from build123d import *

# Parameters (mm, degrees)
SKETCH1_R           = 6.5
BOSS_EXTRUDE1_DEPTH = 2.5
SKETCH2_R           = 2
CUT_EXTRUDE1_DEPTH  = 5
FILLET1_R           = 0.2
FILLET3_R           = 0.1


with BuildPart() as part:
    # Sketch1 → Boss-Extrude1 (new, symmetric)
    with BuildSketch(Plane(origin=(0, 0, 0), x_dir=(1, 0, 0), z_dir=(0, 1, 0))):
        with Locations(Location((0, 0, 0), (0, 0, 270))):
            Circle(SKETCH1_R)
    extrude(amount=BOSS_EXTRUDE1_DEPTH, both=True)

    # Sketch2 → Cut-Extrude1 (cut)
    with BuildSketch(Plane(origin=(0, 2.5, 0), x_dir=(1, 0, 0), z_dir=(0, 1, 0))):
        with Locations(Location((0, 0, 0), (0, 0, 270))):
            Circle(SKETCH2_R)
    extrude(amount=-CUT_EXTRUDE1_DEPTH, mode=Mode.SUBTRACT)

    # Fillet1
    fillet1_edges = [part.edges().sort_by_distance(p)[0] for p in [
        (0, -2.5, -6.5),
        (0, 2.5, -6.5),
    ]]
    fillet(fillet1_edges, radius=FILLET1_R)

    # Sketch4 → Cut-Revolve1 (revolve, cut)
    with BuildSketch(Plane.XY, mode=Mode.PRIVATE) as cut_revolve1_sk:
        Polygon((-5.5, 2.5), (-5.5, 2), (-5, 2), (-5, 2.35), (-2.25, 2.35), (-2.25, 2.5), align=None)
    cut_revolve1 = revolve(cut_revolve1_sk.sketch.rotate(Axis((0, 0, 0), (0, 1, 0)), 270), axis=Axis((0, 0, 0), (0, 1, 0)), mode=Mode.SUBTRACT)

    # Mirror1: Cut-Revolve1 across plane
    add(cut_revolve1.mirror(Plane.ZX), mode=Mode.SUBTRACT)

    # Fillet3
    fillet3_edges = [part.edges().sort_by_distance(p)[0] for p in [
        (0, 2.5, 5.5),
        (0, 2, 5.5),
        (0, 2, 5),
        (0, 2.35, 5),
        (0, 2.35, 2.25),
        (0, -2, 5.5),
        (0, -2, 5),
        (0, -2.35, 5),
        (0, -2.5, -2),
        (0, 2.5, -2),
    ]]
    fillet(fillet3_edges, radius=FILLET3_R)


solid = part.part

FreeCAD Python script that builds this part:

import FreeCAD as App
import Part
import Sketcher
from FreeCAD import Vector


def edges_at(feature, points):
    """Names of the edges that pass closest to the given points."""
    edges = feature.Shape.Edges
    near = lambda p: min(range(len(edges)), key=lambda i: edges[i].distToShape(Part.Vertex(*p))[0])
    return sorted({f"Edge{near(p) + 1}" for p in points})


def add_polygon(sketch, points):
    """Adds a closed chain of lines whose ends are joined by coincident constraints."""
    first, n = sketch.GeometryCount, len(points)
    for a, b in zip(points, points[1:] + points[:1]):
        sketch.addGeometry(Part.LineSegment(App.Vector(*a, 0), App.Vector(*b, 0)), False)
    for i in range(n):
        sketch.addConstraint(Sketcher.Constraint("Coincident", first + i, 2, first + (i + 1) % n, 1))

doc = App.newDocument("Part")
params = doc.addObject("Spreadsheet::Sheet", "Params")
for row, (alias, value) in enumerate([
    ("sketch1_diameter", "13 mm"),
    ("pad1_length", "5 mm"),
    ("sketch2_diameter", "4 mm"),
    ("pocket1_length", "5 mm"),
    ("fillet_radius", "0.2 mm"),
    ("sketch3_width", "0.5 mm"),
    ("sketch3_width2", "2.75 mm"),
    ("sketch3_height", "0.35 mm"),
    ("groove_angle", "360 deg"),
    ("fillet2_radius", "0.1 mm"),
], start=1):
    params.set(f"A{row}", alias)
    params.set(f"B{row}", "=" + value)
    params.setAlias(f"B{row}", alias)

body = doc.addObject("PartDesign::Body", "Body")

# Sketch on XZ plane
sketch1 = body.newObject("Sketcher::SketchObject", "Sketch")
sketch1.AttachmentSupport = (doc.getObject("XZ_Plane"), [""])
sketch1.MapMode = "FlatFace"
sketch1.addGeometry(Part.Circle(Vector(0, 0, 0), Vector(0, 0, 1), 6.5), False)
sketch1.addConstraint([
    Sketcher.Constraint("Coincident", 0, 3, -1, 1),
    Sketcher.Constraint("Diameter", 0, 13.0),
])
sketch1.setExpression("Constraints[1]", "Params.sketch1_diameter")
pad1 = body.newObject("PartDesign::Pad", "Pad")
pad1.Profile = sketch1
pad1.setExpression("Length", "Params.pad1_length")
pad1.Midplane = True

# Sketch on XZ plane
sketch2 = body.newObject("Sketcher::SketchObject", "Sketch001")
sketch2.AttachmentSupport = (doc.getObject("XZ_Plane"), [""])
sketch2.MapMode = "FlatFace"
sketch2.AttachmentOffset = App.Placement(Vector(0, 0, -2.5), App.Rotation())
sketch2.addGeometry(Part.Circle(Vector(0, 0, 0), Vector(0, 0, 1), 2), False)
sketch2.addConstraint([
    Sketcher.Constraint("Coincident", 0, 3, -1, 1),
    Sketcher.Constraint("Diameter", 0, 4.0),
])
sketch2.setExpression("Constraints[1]", "Params.sketch2_diameter")
pocket1 = body.newObject("PartDesign::Pocket", "Pocket")
pocket1.Profile = sketch2
pocket1.setExpression("Length", "Params.pocket1_length")
pocket1.Reversed = True
doc.recompute()

fillet = body.newObject("PartDesign::Fillet", "Fillet")
fillet.Base = (pocket1, edges_at(pocket1, [(0, -2.5, -6.5), (0, 2.5, -6.5)]))
fillet.setExpression("Radius", "Params.fillet_radius")

# Sketch on XY plane
sketch3 = body.newObject("Sketcher::SketchObject", "Sketch002")
sketch3.AttachmentSupport = (doc.getObject("XY_Plane"), [""])
sketch3.MapMode = "FlatFace"
add_polygon(sketch3, [(-5.5, 2.5), (-5.5, 2), (-5, 2), (-5, 2.35), (-2.25, 2.35), (-2.25, 2.5)])  # lines 0-5
sketch3.addConstraint([
    Sketcher.Constraint("Vertical", 0),
    Sketcher.Constraint("Horizontal", 1),
    Sketcher.Constraint("Vertical", 2),
    Sketcher.Constraint("Horizontal", 3),
    Sketcher.Constraint("Vertical", 4),
    Sketcher.Constraint("Horizontal", 5),
    Sketcher.Constraint("Equal", 1, 0),
    Sketcher.Constraint("DistanceX", 1, 1, 1, 2, 0.5),
    Sketcher.Constraint("DistanceY", -1, 1, 0, 2, 2.0),
    Sketcher.Constraint("DistanceX", 1, 2, -1, 1, 5.0),
    Sketcher.Constraint("DistanceX", 3, 1, 3, 2, 2.75),
    Sketcher.Constraint("DistanceY", 2, 1, 2, 2, 0.35),
])
sketch3.setExpression("Constraints[13]", "Params.sketch3_width")
sketch3.setExpression("Constraints[16]", "Params.sketch3_width2")
sketch3.setExpression("Constraints[17]", "Params.sketch3_height")
groove = body.newObject("PartDesign::Groove", "Groove")
groove.Profile = sketch3
groove.ReferenceAxis = (sketch3, ["V_Axis"])
groove.setExpression("Angle", "Params.groove_angle")
doc.recompute()

mirrored = body.newObject("PartDesign::Mirrored", "Mirrored")
mirrored.Originals = [groove]
mirrored.MirrorPlane = (doc.getObject("XZ_Plane"), [""])
body.Tip = mirrored
doc.recompute()

fillet2 = body.newObject("PartDesign::Fillet", "Fillet001")
fillet2.Base = (mirrored, edges_at(mirrored, [
    (0, 2.5, 5.5),
    (0, 2, 5.5),
    (0, 2, 5),
    (0, 2.35, 5),
    (0, 2.35, 2.25),
    (0, -2, 5.5),
    (0, -2, 5),
    (0, -2.35, 5),
    (0, -2.5, -2),
    (0, 2.5, -2),
]))
fillet2.setExpression("Radius", "Params.fillet2_radius")

doc.recompute()
